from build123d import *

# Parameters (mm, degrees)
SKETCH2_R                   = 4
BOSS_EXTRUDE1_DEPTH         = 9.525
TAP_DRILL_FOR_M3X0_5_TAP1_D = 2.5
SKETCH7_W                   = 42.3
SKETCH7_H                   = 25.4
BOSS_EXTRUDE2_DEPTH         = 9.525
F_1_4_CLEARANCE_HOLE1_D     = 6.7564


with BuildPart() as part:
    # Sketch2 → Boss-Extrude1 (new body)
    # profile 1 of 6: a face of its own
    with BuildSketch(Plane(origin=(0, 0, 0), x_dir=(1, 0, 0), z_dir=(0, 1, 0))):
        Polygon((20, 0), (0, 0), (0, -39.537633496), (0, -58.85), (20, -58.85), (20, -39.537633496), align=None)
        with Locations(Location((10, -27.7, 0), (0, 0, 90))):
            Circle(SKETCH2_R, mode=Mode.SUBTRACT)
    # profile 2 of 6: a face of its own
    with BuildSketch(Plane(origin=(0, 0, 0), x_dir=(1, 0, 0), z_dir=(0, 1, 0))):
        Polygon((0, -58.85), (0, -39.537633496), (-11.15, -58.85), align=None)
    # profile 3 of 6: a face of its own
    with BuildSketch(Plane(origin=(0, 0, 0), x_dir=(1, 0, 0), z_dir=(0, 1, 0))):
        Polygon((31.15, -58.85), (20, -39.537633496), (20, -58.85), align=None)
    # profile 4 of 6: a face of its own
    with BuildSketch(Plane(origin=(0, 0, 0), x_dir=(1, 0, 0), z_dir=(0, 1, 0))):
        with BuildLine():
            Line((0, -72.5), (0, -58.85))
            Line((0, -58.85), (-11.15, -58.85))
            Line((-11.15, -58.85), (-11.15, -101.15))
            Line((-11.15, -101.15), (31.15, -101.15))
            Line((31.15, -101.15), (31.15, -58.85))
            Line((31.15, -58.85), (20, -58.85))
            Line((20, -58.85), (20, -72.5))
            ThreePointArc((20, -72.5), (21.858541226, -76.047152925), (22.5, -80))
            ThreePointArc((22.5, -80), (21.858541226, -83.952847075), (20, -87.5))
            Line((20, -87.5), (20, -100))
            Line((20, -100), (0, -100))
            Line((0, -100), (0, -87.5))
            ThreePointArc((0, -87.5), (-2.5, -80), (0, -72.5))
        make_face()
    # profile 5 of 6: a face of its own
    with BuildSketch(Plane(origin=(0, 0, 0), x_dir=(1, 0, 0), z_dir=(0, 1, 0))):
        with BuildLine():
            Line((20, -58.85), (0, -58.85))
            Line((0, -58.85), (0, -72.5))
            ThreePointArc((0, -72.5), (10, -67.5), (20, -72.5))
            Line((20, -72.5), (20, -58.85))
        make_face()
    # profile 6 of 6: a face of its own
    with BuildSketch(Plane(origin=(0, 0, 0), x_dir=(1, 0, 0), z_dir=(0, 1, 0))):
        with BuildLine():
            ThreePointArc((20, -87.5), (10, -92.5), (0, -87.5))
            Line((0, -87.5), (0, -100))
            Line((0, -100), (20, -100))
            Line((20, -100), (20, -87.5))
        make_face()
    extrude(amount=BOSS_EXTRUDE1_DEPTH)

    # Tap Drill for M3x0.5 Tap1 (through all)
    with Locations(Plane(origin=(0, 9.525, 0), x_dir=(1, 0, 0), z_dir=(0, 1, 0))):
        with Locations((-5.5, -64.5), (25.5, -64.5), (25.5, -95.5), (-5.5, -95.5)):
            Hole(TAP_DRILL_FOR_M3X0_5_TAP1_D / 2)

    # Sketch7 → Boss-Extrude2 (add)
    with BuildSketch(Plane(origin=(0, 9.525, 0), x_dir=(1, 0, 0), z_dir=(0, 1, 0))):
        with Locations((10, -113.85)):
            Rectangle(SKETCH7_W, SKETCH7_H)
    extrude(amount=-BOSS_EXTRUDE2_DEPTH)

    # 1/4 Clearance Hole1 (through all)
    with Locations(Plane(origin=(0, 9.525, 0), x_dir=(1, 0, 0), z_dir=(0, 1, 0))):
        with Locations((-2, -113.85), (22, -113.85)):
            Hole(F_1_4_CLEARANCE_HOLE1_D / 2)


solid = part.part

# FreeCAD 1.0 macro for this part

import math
import FreeCAD as App
import Part
import Sketcher

V = App.Vector
Q = App.Units.Quantity


def add_polygon(sketch, points):
    """Adds a closed chain of lines whose ends are joined by coincident constraints."""
    first, n = sketch.GeometryCount, len(points)
    for a, b in zip(points, points[1:] + points[:1]):
        sketch.addGeometry(Part.LineSegment(App.Vector(*a, 0), App.Vector(*b, 0)), False)
    for i in range(n):
        sketch.addConstraint(Sketcher.Constraint("Coincident", first + i, 2, first + (i + 1) % n, 1))

doc = App.newDocument("Part")
body = doc.addObject("PartDesign::Body", "Body")

# Sketch on XZ plane
sketch1 = doc.addObject("Sketcher::SketchObject", "Sketch")
body.addObject(sketch1)
sketch1.AttachmentSupport = (doc.XZ_Plane, [""])
sketch1.MapMode = "FlatFace"
add_polygon(sketch1, [(20, 0), (0, 0), (0, 39.5), (-11.2, 58.9), (-11.2, 101.2), (31.1, 101.2), (31.1, 58.9), (20, 39.5)])  # lines 0-7
sketch1.addGeometry(Part.Circle(V(10, 27.7, 0), V(0, 0, 1), 4), False)  # 8
sketch1.addGeometry(Part.ArcOfCircle(Part.Circle(V(10, 80, 0), V(0, 0, 1), 12.5), math.radians(-37), math.radians(0)), False)  # 9
sketch1.addGeometry(Part.ArcOfCircle(Part.Circle(V(10, 80, 0), V(0, 0, 1), 12.5), math.radians(0), math.radians(37)), False)  # 10
sketch1.addGeometry(Part.ArcOfCircle(Part.Circle(V(10, 80, 0), V(0, 0, 1), 12.5), math.radians(37), math.radians(323)), False)  # 11
sketch1.addConstraint([
    Sketcher.Constraint("Tangent", 9, 2, 10, 1),
    Sketcher.Constraint("Tangent", 10, 2, 11, 1),
    Sketcher.Constraint("Tangent", 11, 2, 9, 1),
    Sketcher.Constraint("Horizontal", 0),
    Sketcher.Constraint("Vertical", 1),
    Sketcher.Constraint("Vertical", 3),
    Sketcher.Constraint("Horizontal", 4),
    Sketcher.Constraint("Vertical", 5),
    Sketcher.Constraint("Vertical", 7),
    Sketcher.Constraint("Coincident", 0, 2, -1, 1),
    Sketcher.Constraint("Horizontal", 2, 2, 5, 2),
    Sketcher.Constraint("Horizontal", 1, 2, 6, 2),
    Sketcher.Constraint("Horizontal", 11, 3, 9, 2),
    Sketcher.Constraint("Vertical", 8, 3, 9, 3),
    Sketcher.Constraint("Vertical", 7, 2, 10, 2),
    Sketcher.Constraint("Vertical", 10, 2, 11, 2),
    Sketcher.Constraint("Equal", 4, 3),
    Sketcher.Constraint("Equal", 2, 6),
    Sketcher.Constraint("Diameter", 8, 8.0),
    Sketcher.Constraint("Radius", 9, 12.5),
    Sketcher.Constraint("DistanceX", 0, 2, 0, 1, 20.0),
    Sketcher.Constraint("Angle", 2, Q("120 deg")),
    Sketcher.Constraint("DistanceX", 4, 1, 4, 2, 42.3),
    Sketcher.Constraint("DistanceX", -1, 1, 8, 3, 10.0),
    Sketcher.Constraint("DistanceY", -1, 1, 9, 3, 80.0),
    Sketcher.Constraint("DistanceY", -1, 1, 8, 3, 27.7),
    Sketcher.Constraint("DistanceY", -1, 1, 2, 2, 58.85),
])
pad1 = doc.addObject("PartDesign::Pad", "Pad")
body.addObject(pad1)
pad1.Profile = sketch1
pad1.Length = 9.525
pad1.Reversed = True

# Sketch on XZ plane
sketch2 = doc.addObject("Sketcher::SketchObject", "Sketch001")
body.addObject(sketch2)
sketch2.AttachmentSupport = (doc.XZ_Plane, [""])
sketch2.MapMode = "FlatFace"
sketch2.AttachmentOffset = App.Placement(V(0, 0, -9.525), App.Rotation())
sketch2.addGeometry([
    Part.Circle(V(-5.5, 64.5, 0), V(0, 0, 1), 1.2),
    Part.Circle(V(25.5, 64.5, 0), V(0, 0, 1), 1.2),
    Part.Circle(V(25.5, 95.5, 0), V(0, 0, 1), 1.2),
    Part.Circle(V(-5.5, 95.5, 0), V(0, 0, 1), 1.2),
], False)
sketch2.addConstraint([
    Sketcher.Constraint("Equal", 0, 1),
    Sketcher.Constraint("Equal", 1, 2),
    Sketcher.Constraint("Equal", 2, 3),
    Sketcher.Constraint("Horizontal", 0, 3, 1, 3),
    Sketcher.Constraint("Horizontal", 2, 3, 3, 3),
    Sketcher.Constraint("Vertical", 1, 3, 2, 3),
    Sketcher.Constraint("Vertical", 0, 3, 3, 3),
    Sketcher.Constraint("Diameter", 0, 2.5),
    Sketcher.Constraint("DistanceX", 0, 3, 1, 3, 31.0),
    Sketcher.Constraint("DistanceY", 1, 3, 2, 3, 31.0),
    Sketcher.Constraint("DistanceX", 0, 3, -1, 1, 5.5),
    Sketcher.Constraint("DistanceY", -1, 1, 0, 3, 64.5),
])
doc.recompute()
hole = doc.addObject("PartDesign::Hole", "Hole")
body.addObject(hole)
hole.Profile = sketch2
hole.ThreadType = "None"
hole.Diameter = 2.5
hole.DepthType = "ThroughAll"
hole.Reversed = True

# Sketch on XZ plane
sketch3 = doc.addObject("Sketcher::SketchObject", "Sketch002")
body.addObject(sketch3)
sketch3.AttachmentSupport = (doc.XZ_Plane, [""])
sketch3.MapMode = "FlatFace"
sketch3.AttachmentOffset = App.Placement(V(0, 0, -9.525), App.Rotation())
add_polygon(sketch3, [(-11, 101), (-11, 127), (31, 127), (31, 101)])  # lines 0-3
sketch3.addConstraint([
    Sketcher.Constraint("Vertical", 0),
    Sketcher.Constraint("Horizontal", 1),
    Sketcher.Constraint("Vertical", 2),
    Sketcher.Constraint("Horizontal", 3),
    Sketcher.Constraint("DistanceX", 1, 1, 1, 2, 42.3),
    Sketcher.Constraint("DistanceY", 0, 1, 0, 2, 25.4),
    Sketcher.Constraint("DistanceX", 0, 2, -1, 1, 11.15),
    Sketcher.Constraint("DistanceY", -1, 1, 0, 2, 126.55),
])
pad2 = doc.addObject("PartDesign::Pad", "Pad001")
body.addObject(pad2)
pad2.Profile = sketch3
pad2.Length = 9.525

# Sketch on XZ plane
sketch4 = doc.addObject("Sketcher::SketchObject", "Sketch003")
body.addObject(sketch4)
sketch4.AttachmentSupport = (doc.XZ_Plane, [""])
sketch4.MapMode = "FlatFace"
sketch4.AttachmentOffset = App.Placement(V(0, 0, -9.525), App.Rotation())
sketch4.addGeometry([
    Part.Circle(V(-2, 113.8, 0), V(0, 0, 1), 3.4),
    Part.Circle(V(22, 113.8, 0), V(0, 0, 1), 3.4),
], False)
sketch4.addConstraint([
    Sketcher.Constraint("Equal", 0, 1),
    Sketcher.Constraint("Horizontal", 0, 3, 1, 3),
    Sketcher.Constraint("DistanceX", 0, 3, -1, 1, 2.0),
    Sketcher.Constraint("DistanceX", -1, 1, 1, 3, 22.0),
    Sketcher.Constraint("Diameter", 0, 6.7564),
    Sketcher.Constraint("DistanceY", -1, 1, 0, 3, 113.85),
])
doc.recompute()
hole2 = doc.addObject("PartDesign::Hole", "Hole001")
body.addObject(hole2)
hole2.Profile = sketch4
hole2.ThreadType = "None"
hole2.Diameter = 6.7564
hole2.DepthType = "ThroughAll"
hole2.Reversed = True

doc.recompute()
